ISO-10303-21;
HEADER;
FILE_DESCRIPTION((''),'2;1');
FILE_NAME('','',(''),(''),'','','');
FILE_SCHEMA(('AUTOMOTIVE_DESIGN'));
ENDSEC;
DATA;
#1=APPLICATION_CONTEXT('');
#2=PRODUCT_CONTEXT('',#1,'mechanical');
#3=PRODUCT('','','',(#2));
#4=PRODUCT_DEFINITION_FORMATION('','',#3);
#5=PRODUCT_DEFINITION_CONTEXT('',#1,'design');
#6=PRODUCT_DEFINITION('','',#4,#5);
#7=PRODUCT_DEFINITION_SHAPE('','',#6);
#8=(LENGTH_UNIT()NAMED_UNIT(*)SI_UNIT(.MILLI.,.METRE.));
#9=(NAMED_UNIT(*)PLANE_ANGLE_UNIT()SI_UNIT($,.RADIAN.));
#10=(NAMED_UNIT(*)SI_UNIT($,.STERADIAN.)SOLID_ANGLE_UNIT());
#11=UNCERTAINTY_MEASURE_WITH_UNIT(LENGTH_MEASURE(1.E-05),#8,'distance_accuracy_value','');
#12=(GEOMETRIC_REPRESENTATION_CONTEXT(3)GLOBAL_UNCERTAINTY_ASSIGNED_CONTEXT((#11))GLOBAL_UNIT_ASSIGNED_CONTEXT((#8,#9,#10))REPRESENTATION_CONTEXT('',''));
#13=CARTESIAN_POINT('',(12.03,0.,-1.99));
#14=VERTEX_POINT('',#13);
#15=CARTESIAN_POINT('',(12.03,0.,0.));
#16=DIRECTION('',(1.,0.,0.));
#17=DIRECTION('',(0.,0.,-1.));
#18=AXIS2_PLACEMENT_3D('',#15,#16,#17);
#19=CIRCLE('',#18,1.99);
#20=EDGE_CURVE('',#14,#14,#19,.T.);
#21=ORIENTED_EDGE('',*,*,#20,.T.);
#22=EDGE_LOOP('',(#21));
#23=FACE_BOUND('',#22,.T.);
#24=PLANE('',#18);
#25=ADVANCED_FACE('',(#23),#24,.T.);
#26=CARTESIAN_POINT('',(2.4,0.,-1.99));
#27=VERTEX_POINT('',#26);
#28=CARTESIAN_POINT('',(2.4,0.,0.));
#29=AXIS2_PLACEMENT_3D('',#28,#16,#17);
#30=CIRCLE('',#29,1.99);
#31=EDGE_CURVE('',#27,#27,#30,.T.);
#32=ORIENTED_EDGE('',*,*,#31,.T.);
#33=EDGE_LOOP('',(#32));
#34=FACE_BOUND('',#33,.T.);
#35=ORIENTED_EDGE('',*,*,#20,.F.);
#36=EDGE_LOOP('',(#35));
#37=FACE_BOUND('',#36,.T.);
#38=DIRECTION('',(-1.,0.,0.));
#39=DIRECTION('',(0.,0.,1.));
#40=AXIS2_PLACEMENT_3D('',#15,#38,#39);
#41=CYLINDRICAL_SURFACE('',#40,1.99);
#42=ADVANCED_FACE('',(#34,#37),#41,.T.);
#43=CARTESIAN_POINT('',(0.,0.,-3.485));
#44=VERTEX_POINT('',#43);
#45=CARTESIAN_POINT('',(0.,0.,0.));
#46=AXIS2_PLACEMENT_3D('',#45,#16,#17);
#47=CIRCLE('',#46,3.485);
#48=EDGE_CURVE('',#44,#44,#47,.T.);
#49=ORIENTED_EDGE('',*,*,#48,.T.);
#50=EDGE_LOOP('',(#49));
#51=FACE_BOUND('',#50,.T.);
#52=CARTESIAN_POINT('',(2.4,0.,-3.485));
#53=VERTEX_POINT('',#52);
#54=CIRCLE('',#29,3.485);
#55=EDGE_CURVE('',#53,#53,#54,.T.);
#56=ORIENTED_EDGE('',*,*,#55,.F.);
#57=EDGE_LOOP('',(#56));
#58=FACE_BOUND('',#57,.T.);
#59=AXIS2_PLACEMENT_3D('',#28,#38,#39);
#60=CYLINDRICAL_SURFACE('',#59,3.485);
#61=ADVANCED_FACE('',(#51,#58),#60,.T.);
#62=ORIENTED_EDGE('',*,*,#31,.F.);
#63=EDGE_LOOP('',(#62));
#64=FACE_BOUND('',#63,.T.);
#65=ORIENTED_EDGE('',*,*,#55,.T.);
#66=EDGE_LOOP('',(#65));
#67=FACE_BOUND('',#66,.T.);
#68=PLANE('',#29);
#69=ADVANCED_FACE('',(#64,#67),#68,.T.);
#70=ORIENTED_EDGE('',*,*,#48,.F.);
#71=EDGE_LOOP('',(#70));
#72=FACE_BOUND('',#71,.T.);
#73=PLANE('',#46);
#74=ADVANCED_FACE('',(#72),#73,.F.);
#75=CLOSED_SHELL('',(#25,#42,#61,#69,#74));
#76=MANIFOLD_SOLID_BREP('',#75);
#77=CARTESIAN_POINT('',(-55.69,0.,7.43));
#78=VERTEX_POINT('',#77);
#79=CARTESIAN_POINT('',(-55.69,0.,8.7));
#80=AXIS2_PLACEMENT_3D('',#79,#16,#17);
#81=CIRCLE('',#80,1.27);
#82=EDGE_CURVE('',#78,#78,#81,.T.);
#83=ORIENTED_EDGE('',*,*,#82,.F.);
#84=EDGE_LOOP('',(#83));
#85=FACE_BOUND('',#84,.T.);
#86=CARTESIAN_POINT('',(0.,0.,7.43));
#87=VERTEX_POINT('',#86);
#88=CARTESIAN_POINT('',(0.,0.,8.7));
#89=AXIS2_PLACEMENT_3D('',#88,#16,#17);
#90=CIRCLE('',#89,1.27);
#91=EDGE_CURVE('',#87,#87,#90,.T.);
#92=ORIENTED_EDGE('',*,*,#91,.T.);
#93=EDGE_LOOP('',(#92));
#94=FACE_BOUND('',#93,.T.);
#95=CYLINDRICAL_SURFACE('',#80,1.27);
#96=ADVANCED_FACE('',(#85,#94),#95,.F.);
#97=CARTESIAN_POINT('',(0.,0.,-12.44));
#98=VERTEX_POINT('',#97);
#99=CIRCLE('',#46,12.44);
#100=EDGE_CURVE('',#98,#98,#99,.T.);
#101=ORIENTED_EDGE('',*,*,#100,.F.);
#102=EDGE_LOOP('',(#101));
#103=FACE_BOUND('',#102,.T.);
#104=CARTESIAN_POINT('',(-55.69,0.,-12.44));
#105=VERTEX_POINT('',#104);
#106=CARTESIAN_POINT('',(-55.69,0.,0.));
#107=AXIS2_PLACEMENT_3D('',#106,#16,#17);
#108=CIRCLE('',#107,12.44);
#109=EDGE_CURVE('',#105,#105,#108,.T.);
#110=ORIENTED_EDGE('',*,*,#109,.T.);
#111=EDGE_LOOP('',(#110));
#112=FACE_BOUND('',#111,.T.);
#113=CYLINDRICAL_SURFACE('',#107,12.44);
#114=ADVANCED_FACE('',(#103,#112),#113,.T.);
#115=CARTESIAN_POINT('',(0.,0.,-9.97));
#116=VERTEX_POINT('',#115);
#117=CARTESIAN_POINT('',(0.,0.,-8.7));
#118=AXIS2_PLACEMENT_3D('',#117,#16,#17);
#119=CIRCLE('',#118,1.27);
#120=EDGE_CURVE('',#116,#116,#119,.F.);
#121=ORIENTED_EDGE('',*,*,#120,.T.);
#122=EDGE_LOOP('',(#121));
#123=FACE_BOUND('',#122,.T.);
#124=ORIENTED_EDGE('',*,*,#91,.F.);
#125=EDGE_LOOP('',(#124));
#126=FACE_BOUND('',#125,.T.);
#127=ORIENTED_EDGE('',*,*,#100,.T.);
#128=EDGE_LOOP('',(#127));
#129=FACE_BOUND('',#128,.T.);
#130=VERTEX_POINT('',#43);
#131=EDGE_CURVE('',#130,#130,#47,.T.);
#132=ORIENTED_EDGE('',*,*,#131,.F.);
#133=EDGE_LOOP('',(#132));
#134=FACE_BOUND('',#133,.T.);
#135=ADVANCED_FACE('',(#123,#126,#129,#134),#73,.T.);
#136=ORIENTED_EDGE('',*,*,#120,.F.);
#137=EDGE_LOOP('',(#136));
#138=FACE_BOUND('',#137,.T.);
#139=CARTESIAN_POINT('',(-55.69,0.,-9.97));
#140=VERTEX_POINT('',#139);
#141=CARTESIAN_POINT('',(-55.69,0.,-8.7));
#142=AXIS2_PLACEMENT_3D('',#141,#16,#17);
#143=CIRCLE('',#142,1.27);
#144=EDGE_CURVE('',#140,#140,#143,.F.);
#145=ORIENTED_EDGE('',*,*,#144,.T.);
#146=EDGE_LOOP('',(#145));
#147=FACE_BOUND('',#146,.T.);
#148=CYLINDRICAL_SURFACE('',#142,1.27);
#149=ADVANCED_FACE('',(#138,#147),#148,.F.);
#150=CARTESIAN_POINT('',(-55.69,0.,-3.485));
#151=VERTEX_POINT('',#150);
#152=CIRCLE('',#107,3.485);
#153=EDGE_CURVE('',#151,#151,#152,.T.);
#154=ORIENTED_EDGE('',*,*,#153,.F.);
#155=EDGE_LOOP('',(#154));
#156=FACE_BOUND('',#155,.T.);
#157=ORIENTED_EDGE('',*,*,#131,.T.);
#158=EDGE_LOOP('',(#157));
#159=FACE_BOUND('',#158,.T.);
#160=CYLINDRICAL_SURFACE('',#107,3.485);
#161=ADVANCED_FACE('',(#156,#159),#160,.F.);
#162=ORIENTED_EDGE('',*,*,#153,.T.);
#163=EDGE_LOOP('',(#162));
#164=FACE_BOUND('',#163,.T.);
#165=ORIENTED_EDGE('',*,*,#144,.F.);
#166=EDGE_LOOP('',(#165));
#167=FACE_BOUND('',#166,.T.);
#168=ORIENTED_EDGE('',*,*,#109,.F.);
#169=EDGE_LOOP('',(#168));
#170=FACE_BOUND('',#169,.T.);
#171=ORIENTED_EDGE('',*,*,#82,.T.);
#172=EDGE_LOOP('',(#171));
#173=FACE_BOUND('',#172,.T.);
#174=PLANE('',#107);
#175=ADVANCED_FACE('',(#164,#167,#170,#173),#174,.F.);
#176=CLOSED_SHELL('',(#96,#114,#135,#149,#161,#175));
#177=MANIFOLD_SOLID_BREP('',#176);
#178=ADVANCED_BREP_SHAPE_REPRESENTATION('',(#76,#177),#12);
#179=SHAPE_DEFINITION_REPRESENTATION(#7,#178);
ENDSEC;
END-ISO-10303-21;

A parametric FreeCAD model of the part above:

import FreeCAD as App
import Part
import Sketcher
from FreeCAD import Vector
Q = App.Units.Quantity

doc = App.newDocument("Part")
params = doc.addObject("Spreadsheet::Sheet", "Params")
for row, (alias, value) in enumerate([
    ("sketch1_diameter", "3.98 mm"),
    ("pad1_length", "12.03 mm"),
    ("sketch2_diameter", "6.97 mm"),
    ("sketch2_diameter2", "3.98 mm"),
    ("pad2_length", "2.4 mm"),
    ("sketch3_diameter", "24.88 mm"),
    ("sketch3_diameter2", "2.54 mm"),
    ("sketch3_diameter3", "6.97 mm"),
    ("pad3_length", "55.69 mm"),
], start=1):
    params.set(f"A{row}", alias)
    params.set(f"B{row}", "=" + value)
    params.setAlias(f"B{row}", alias)

body = doc.addObject("PartDesign::Body", "Body")

# Sketch on YZ plane
sketch1 = body.newObject("Sketcher::SketchObject", "Sketch")
sketch1.AttachmentSupport = (doc.getObject("YZ_Plane"), [""])
sketch1.MapMode = "FlatFace"
sketch1.addGeometry(Part.Circle(Vector(0, 0, 0), Vector(0, 0, 1), 2), False)
sketch1.addConstraint([
    Sketcher.Constraint("Coincident", 0, 3, -1, 1),
    Sketcher.Constraint("Diameter", 0, Q("3.98 mm")),
])
sketch1.setExpression("Constraints[1]", "Params.sketch1_diameter")
pad1 = body.newObject("PartDesign::Pad", "Pad")
pad1.Profile = sketch1
pad1.setExpression("Length", "Params.pad1_length")

# Sketch on YZ plane
sketch2 = body.newObject("Sketcher::SketchObject", "Sketch001")
sketch2.AttachmentSupport = (doc.getObject("YZ_Plane"), [""])
sketch2.MapMode = "FlatFace"
sketch2.addGeometry([
    Part.Circle(Vector(0, 0, 0), Vector(0, 0, 1), 3.5),
    Part.Circle(Vector(0, 0, 0), Vector(0, 0, 1), 2),
], False)
sketch2.addConstraint([
    Sketcher.Constraint("Coincident", 0, 3, -1, 1),
    Sketcher.Constraint("Coincident", 1, 3, -1, 1),
    Sketcher.Constraint("Diameter", 0, Q("6.97 mm")),
    Sketcher.Constraint("Diameter", 1, Q("3.98 mm")),
])
sketch2.setExpression("Constraints[2]", "Params.sketch2_diameter")
sketch2.setExpression("Constraints[3]", "Params.sketch2_diameter2")
pad2 = body.newObject("PartDesign::Pad", "Pad001")
pad2.Profile = sketch2
pad2.setExpression("Length", "Params.pad2_length")
body2 = doc.addObject("PartDesign::Body", "Body001")

# Sketch on YZ plane
sketch3 = body2.newObject("Sketcher::SketchObject", "Sketch002")
sketch3.AttachmentSupport = (doc.getObject("YZ_Plane001"), [""])
sketch3.MapMode = "FlatFace"
sketch3.addGeometry([
    Part.Circle(Vector(0, 0, 0), Vector(0, 0, 1), 12.4),
    Part.Circle(Vector(0, 8.7, 0), Vector(0, 0, 1), 1.3),
    Part.Circle(Vector(0, 0, 0), Vector(0, 0, 1), 3.5),
    Part.Circle(Vector(0, -8.7, 0), Vector(0, 0, 1), 1.3),
], False)
sketch3.addConstraint([
    Sketcher.Constraint("Coincident", 0, 3, -1, 1),
    Sketcher.Constraint("Coincident", 2, 3, -1, 1),
    Sketcher.Constraint("Equal", 1, 3),
    Sketcher.Constraint("Symmetric", 1, 3, 3, 3, -1, 1),
    Sketcher.Constraint("PointOnObject", 1, 3, -2),
    Sketcher.Constraint("Diameter", 0, Q("24.88 mm")),
    Sketcher.Constraint("Diameter", 1, Q("2.54 mm")),
    Sketcher.Constraint("Diameter", 2, Q("6.97 mm")),
    Sketcher.Constraint("DistanceY", -1, 1, 1, 3, Q("8.7 mm")),
])
sketch3.setExpression("Constraints[5]", "Params.sketch3_diameter")
sketch3.setExpression("Constraints[6]", "Params.sketch3_diameter2")
sketch3.setExpression("Constraints[7]", "Params.sketch3_diameter3")
pad3 = body2.newObject("PartDesign::Pad", "Pad002")
pad3.Profile = sketch3
pad3.setExpression("Length", "Params.pad3_length")
pad3.Reversed = True

doc.recompute()
